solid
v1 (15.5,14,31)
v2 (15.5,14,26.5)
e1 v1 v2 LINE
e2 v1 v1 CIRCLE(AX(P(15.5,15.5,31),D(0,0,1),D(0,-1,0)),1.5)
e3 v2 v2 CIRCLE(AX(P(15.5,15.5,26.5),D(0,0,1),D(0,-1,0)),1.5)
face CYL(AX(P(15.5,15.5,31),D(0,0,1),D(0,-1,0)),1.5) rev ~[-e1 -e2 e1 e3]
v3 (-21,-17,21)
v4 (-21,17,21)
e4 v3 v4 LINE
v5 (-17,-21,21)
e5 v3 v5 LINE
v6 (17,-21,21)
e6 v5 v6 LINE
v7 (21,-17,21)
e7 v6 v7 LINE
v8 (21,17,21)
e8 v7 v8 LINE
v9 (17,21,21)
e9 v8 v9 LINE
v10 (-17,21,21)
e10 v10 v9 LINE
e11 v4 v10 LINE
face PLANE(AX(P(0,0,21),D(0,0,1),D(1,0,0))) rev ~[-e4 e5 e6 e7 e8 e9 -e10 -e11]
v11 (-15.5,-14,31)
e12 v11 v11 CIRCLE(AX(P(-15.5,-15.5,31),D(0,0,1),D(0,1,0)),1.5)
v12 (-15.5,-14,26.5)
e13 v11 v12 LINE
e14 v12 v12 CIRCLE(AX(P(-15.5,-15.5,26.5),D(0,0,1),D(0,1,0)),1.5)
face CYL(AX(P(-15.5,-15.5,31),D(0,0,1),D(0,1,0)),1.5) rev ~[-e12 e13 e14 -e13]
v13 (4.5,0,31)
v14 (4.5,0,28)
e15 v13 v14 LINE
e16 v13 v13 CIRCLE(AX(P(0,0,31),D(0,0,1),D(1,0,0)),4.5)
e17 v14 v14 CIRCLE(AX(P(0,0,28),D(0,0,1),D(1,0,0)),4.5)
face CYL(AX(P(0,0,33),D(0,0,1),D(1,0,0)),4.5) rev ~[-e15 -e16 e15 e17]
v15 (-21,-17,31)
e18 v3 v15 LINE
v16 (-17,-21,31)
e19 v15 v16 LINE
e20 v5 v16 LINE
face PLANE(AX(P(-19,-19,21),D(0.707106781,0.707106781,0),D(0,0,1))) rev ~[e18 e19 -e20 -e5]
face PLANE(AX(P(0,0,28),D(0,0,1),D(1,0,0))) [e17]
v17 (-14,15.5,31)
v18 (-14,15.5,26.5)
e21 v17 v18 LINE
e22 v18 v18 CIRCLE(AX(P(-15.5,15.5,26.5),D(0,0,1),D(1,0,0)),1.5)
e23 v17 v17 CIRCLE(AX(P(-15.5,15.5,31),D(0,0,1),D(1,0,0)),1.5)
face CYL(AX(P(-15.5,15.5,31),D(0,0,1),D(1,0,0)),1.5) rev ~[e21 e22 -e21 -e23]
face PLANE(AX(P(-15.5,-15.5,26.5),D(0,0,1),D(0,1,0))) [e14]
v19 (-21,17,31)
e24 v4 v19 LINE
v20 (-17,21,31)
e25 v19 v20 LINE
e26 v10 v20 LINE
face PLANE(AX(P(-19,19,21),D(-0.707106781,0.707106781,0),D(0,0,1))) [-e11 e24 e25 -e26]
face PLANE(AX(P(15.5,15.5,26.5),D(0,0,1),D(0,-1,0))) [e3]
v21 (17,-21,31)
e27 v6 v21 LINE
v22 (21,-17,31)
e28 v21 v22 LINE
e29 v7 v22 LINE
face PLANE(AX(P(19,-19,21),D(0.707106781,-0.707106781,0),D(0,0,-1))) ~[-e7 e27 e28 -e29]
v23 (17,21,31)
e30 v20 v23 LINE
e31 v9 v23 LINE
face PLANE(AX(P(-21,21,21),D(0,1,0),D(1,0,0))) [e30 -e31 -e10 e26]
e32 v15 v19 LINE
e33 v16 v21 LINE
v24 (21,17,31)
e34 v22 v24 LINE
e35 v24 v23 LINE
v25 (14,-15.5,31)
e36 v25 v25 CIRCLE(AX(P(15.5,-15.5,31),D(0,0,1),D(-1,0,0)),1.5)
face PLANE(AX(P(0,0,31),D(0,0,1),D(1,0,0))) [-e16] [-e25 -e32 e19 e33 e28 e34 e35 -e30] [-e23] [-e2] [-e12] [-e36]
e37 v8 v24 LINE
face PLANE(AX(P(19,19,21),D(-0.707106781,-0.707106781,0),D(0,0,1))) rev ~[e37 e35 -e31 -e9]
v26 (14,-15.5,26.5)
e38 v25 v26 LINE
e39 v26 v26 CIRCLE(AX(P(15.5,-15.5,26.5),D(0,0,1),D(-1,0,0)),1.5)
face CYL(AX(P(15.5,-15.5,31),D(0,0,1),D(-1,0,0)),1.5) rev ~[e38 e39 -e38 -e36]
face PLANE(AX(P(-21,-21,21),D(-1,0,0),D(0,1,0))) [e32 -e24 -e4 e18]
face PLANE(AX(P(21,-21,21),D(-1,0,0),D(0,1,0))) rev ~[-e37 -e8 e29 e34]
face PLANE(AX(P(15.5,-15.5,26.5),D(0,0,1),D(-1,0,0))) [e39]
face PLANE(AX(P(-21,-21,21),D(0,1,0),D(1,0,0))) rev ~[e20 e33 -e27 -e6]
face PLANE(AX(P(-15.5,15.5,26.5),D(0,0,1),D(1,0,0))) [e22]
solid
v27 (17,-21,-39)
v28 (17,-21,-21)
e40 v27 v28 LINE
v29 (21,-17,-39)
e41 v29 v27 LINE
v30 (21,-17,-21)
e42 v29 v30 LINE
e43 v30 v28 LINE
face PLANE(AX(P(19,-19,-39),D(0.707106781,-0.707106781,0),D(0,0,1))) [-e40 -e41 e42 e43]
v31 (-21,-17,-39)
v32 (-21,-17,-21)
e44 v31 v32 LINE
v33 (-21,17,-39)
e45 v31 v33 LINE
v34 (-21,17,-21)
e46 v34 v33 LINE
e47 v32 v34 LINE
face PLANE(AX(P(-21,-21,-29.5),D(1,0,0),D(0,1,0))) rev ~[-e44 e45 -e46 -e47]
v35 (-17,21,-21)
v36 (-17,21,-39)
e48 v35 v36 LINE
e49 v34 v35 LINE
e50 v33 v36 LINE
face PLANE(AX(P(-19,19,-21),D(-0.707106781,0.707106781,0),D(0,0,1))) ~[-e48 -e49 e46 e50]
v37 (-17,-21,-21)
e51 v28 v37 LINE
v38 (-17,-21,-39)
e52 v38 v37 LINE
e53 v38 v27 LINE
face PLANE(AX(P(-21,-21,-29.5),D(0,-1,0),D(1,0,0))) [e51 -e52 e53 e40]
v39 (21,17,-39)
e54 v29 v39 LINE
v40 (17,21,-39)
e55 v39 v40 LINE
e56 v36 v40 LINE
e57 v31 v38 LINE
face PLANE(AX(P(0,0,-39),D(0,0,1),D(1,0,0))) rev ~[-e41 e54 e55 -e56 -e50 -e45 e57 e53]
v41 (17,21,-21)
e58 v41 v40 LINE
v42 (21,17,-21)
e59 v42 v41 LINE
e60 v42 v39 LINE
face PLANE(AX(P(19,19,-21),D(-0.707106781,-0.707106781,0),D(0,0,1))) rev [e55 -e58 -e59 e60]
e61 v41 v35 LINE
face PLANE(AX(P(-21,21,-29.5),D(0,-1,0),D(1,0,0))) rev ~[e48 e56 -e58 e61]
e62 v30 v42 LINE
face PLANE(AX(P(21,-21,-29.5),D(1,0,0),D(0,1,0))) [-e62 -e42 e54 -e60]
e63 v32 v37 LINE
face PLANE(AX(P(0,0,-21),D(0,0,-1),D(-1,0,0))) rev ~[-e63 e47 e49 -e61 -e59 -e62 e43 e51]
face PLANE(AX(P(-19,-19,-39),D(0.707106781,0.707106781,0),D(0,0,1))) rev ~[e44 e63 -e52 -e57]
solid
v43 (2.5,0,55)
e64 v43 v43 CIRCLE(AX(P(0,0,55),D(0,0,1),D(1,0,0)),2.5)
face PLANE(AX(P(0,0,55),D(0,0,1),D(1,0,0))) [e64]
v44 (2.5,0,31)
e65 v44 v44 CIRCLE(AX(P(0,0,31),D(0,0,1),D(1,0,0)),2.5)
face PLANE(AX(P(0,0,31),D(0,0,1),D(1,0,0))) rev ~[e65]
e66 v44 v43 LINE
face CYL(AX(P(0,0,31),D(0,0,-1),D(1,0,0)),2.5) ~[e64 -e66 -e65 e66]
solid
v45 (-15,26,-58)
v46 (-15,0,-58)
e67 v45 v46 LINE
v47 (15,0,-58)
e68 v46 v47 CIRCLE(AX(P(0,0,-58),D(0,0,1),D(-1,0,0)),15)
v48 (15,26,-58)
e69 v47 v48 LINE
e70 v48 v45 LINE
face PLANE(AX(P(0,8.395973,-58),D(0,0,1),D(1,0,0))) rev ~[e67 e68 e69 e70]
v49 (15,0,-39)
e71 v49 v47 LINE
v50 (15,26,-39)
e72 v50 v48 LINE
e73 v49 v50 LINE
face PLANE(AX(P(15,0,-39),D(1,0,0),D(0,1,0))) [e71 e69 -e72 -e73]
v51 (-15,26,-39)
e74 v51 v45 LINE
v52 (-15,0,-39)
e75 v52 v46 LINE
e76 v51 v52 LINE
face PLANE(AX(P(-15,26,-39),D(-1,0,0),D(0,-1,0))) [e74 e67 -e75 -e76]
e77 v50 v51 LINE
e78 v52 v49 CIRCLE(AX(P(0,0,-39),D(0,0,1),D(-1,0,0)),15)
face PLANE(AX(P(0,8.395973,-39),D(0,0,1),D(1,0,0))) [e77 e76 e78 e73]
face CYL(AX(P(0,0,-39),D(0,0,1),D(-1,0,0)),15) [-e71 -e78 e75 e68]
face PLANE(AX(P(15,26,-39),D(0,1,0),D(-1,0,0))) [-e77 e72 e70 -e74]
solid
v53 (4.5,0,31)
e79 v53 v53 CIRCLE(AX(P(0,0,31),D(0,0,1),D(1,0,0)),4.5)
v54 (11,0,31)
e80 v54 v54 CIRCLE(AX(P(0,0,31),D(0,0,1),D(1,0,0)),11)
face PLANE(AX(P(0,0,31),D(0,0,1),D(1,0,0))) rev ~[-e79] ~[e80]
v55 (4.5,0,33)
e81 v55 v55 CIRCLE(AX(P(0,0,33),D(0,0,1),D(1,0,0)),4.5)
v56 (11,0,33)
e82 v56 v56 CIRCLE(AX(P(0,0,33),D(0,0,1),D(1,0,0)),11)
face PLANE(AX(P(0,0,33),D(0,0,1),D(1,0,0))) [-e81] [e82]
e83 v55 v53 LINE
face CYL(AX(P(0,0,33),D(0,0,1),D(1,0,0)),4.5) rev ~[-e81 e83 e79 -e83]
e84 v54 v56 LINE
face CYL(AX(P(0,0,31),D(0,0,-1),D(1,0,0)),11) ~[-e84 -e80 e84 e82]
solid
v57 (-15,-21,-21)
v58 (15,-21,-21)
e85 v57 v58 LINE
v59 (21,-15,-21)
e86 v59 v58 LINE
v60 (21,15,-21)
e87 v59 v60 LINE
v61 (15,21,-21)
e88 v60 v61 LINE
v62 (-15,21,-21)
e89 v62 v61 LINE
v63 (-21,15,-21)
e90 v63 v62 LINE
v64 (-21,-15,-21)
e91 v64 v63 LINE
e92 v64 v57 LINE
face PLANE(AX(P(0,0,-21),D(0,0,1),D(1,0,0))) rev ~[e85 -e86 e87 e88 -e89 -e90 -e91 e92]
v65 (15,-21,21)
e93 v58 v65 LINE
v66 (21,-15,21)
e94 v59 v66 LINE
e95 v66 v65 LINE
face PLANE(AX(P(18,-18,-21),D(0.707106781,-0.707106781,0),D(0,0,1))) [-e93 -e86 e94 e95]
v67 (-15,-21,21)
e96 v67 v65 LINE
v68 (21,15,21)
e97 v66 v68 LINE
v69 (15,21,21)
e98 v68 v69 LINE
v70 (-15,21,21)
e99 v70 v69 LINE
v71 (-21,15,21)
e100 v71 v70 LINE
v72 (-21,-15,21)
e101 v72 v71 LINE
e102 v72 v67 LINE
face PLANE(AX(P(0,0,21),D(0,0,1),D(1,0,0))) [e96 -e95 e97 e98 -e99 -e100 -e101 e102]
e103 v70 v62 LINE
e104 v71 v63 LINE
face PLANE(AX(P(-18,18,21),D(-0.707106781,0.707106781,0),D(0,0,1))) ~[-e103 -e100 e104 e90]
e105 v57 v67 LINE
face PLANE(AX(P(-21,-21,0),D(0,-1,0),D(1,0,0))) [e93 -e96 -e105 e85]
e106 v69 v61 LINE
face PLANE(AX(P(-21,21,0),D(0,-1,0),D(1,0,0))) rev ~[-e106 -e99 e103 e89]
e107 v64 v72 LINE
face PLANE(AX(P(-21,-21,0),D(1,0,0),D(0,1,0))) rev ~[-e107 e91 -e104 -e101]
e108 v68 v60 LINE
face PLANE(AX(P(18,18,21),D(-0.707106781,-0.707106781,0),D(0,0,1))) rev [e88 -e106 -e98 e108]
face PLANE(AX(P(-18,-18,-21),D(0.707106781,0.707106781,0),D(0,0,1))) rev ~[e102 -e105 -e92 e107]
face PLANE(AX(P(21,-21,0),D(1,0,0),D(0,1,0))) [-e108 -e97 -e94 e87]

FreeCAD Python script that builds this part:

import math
import FreeCAD as App
import Part
import Sketcher


def edges_at(feature, points):
    """Names of the edges that pass closest to the given points."""
    edges = feature.Shape.Edges
    near = lambda p: min(range(len(edges)), key=lambda i: edges[i].distToShape(Part.Vertex(*p))[0])
    return sorted({f"Edge{near(p) + 1}" for p in points})

doc = App.newDocument("Part")
body = doc.addObject("PartDesign::Body", "Body")

# Sketch on XY plane
sketch1 = body.newObject("Sketcher::SketchObject", "Sketch")
sketch1.AttachmentSupport = (doc.getObject("XY_Plane"), [""])
sketch1.MapMode = "FlatFace"
sketch1.addGeometry([
    Part.LineSegment(App.Vector(-21, 21, 0), App.Vector(-21, -21, 0)),
    Part.LineSegment(App.Vector(-21, -21, 0), App.Vector(21, -21, 0)),
    Part.LineSegment(App.Vector(21, -21, 0), App.Vector(21, 21, 0)),
    Part.LineSegment(App.Vector(21, 21, 0), App.Vector(-21, 21, 0)),
], False)
sketch1.addConstraint([
    Sketcher.Constraint("Coincident", 0, 2, 1, 1),
    Sketcher.Constraint("Coincident", 1, 2, 2, 1),
    Sketcher.Constraint("Coincident", 2, 2, 3, 1),
    Sketcher.Constraint("Coincident", 3, 2, 0, 1),
    Sketcher.Constraint("Vertical", 0),
    Sketcher.Constraint("Horizontal", 1),
    Sketcher.Constraint("Vertical", 2),
    Sketcher.Constraint("Horizontal", 3),
    Sketcher.Constraint("Symmetric", 0, 2, 2, 2, -1, 1),
    Sketcher.Constraint("Equal", 3, 0),
    Sketcher.Constraint("DistanceX", 1, 1, 1, 2, 42.0),
])
pad1 = body.newObject("PartDesign::Pad", "Pad")
pad1.Profile = sketch1
pad1.Length = 42
pad1.Midplane = True
doc.recompute()

chamfer = body.newObject("PartDesign::Chamfer", "Chamfer")
chamfer.Base = (pad1, edges_at(pad1, [
    (21, -21, 0),
    (-21, -21, 0),
    (-21, 21, 0),
    (21, 21, 0),
]))
chamfer.Size = 6
body2 = doc.addObject("PartDesign::Body", "Body001")

# Sketch on XY plane
sketch2 = body2.newObject("Sketcher::SketchObject", "Sketch001")
sketch2.AttachmentSupport = (doc.getObject("XY_Plane001"), [""])
sketch2.MapMode = "FlatFace"
sketch2.AttachmentOffset = App.Placement(App.Vector(0, 0, 21), App.Rotation())
sketch2.addGeometry([
    Part.LineSegment(App.Vector(-21, 21, 0), App.Vector(-21, -21, 0)),
    Part.LineSegment(App.Vector(-21, -21, 0), App.Vector(21, -21, 0)),
    Part.LineSegment(App.Vector(21, -21, 0), App.Vector(21, 21, 0)),
    Part.LineSegment(App.Vector(21, 21, 0), App.Vector(-21, 21, 0)),
], False)
sketch2.addConstraint([
    Sketcher.Constraint("Coincident", 0, 2, 1, 1),
    Sketcher.Constraint("Coincident", 1, 2, 2, 1),
    Sketcher.Constraint("Coincident", 2, 2, 3, 1),
    Sketcher.Constraint("Coincident", 3, 2, 0, 1),
    Sketcher.Constraint("Vertical", 0),
    Sketcher.Constraint("Horizontal", 1),
    Sketcher.Constraint("Vertical", 2),
    Sketcher.Constraint("Horizontal", 3),
    Sketcher.Constraint("Symmetric", 0, 2, 2, 2, -1, 1),
    Sketcher.Constraint("Equal", 3, 0),
    Sketcher.Constraint("DistanceX", 1, 1, 1, 2, 42.0),
])
pad2 = body2.newObject("PartDesign::Pad", "Pad001")
pad2.Profile = sketch2
pad2.Length = 10
doc.recompute()

chamfer2 = body2.newObject("PartDesign::Chamfer", "Chamfer001")
chamfer2.Base = (pad2, edges_at(pad2, [
    (21, -21, 26),
    (-21, -21, 26),
    (-21, 21, 26),
    (21, 21, 26),
]))
chamfer2.Size = 4
body3 = doc.addObject("PartDesign::Body", "Body002")

# Sketch on XY plane
sketch3 = body3.newObject("Sketcher::SketchObject", "Sketch002")
sketch3.AttachmentSupport = (doc.getObject("XY_Plane002"), [""])
sketch3.MapMode = "FlatFace"
sketch3.AttachmentOffset = App.Placement(App.Vector(0, 0, -21), App.Rotation())
sketch3.addGeometry([
    Part.LineSegment(App.Vector(21, 21, 0), App.Vector(21, -21, 0)),
    Part.LineSegment(App.Vector(21, -21, 0), App.Vector(-21, -21, 0)),
    Part.LineSegment(App.Vector(-21, -21, 0), App.Vector(-21, 21, 0)),
    Part.LineSegment(App.Vector(-21, 21, 0), App.Vector(21, 21, 0)),
], False)
sketch3.addConstraint([
    Sketcher.Constraint("Coincident", 0, 2, 1, 1),
    Sketcher.Constraint("Coincident", 1, 2, 2, 1),
    Sketcher.Constraint("Coincident", 2, 2, 3, 1),
    Sketcher.Constraint("Coincident", 3, 2, 0, 1),
    Sketcher.Constraint("Vertical", 0),
    Sketcher.Constraint("Horizontal", 1),
    Sketcher.Constraint("Vertical", 2),
    Sketcher.Constraint("Horizontal", 3),
    Sketcher.Constraint("Symmetric", 0, 2, 2, 2, -1, 1),
    Sketcher.Constraint("Equal", 3, 0),
    Sketcher.Constraint("DistanceX", 1, 2, 1, 1, 42.0),
])
pad3 = body3.newObject("PartDesign::Pad", "Pad002")
pad3.Profile = sketch3
pad3.Length = 8.5
pad3.Reversed = True

# Sketch on XY plane
sketch4 = body3.newObject("Sketcher::SketchObject", "Sketch003")
sketch4.AttachmentSupport = (doc.getObject("XY_Plane002"), [""])
sketch4.MapMode = "FlatFace"
sketch4.AttachmentOffset = App.Placement(App.Vector(0, 0, -29.5), App.Rotation())
sketch4.addGeometry([
    Part.LineSegment(App.Vector(-21, 21, 0), App.Vector(-21, -21, 0)),
    Part.LineSegment(App.Vector(-21, -21, 0), App.Vector(21, -21, 0)),
    Part.LineSegment(App.Vector(21, -21, 0), App.Vector(21, 21, 0)),
    Part.LineSegment(App.Vector(21, 21, 0), App.Vector(-21, 21, 0)),
], False)
sketch4.addConstraint([
    Sketcher.Constraint("Coincident", 0, 2, 1, 1),
    Sketcher.Constraint("Coincident", 1, 2, 2, 1),
    Sketcher.Constraint("Coincident", 2, 2, 3, 1),
    Sketcher.Constraint("Coincident", 3, 2, 0, 1),
    Sketcher.Constraint("Vertical", 0),
    Sketcher.Constraint("Horizontal", 1),
    Sketcher.Constraint("Vertical", 2),
    Sketcher.Constraint("Horizontal", 3),
    Sketcher.Constraint("Symmetric", 0, 2, 2, 2, -1, 1),
    Sketcher.Constraint("Equal", 3, 0),
    Sketcher.Constraint("DistanceX", 1, 1, 1, 2, 42.0),
])
pad4 = body3.newObject("PartDesign::Pad", "Pad003")
pad4.Profile = sketch4
pad4.Length = 9.5
pad4.Reversed = True
doc.recompute()

chamfer3 = body3.newObject("PartDesign::Chamfer", "Chamfer002")
chamfer3.Base = (pad4, edges_at(pad4, [
    (-21, -21, -30),
    (21, -21, -30),
    (21, 21, -30),
    (-21, 21, -30),
]))
chamfer3.Size = 4
body4 = doc.addObject("PartDesign::Body", "Body003")

# Sketch on XY plane
sketch5 = body4.newObject("Sketcher::SketchObject", "Sketch004")
sketch5.AttachmentSupport = (doc.getObject("XY_Plane003"), [""])
sketch5.MapMode = "FlatFace"
sketch5.AttachmentOffset = App.Placement(App.Vector(0, 0, 31), App.Rotation())
sketch5.addGeometry(Part.Circle(App.Vector(0, 0, 0), App.Vector(0, 0, 1), 11), False)
sketch5.addConstraint([
    Sketcher.Constraint("Coincident", 0, 3, -1, 1),
    Sketcher.Constraint("Diameter", 0, 22.0),
])
pad5 = body4.newObject("PartDesign::Pad", "Pad004")
pad5.Profile = sketch5
pad5.Length = 2
body5 = doc.addObject("PartDesign::Body", "Body004")

# Sketch on XY plane
sketch6 = body5.newObject("Sketcher::SketchObject", "Sketch005")
sketch6.AttachmentSupport = (doc.getObject("XY_Plane004"), [""])
sketch6.MapMode = "FlatFace"
sketch6.AttachmentOffset = App.Placement(App.Vector(0, 0, 33), App.Rotation())
sketch6.addGeometry(Part.Circle(App.Vector(0, 0, 0), App.Vector(0, 0, 1), 4.5), False)
sketch6.addConstraint([
    Sketcher.Constraint("Coincident", 0, 3, -1, 1),
    Sketcher.Constraint("Diameter", 0, 9.0),
])
pad6 = body5.newObject("PartDesign::Pad", "Pad005")
pad6.Profile = sketch6
pad6.Length = 5
pad6.Reversed = True
doc.recompute()

body6 = doc.addObject("PartDesign::Body", "Body005")
body6.BaseFeature = body5
boolean = body2.newObject("PartDesign::Boolean", "Boolean")
boolean.Type = "Cut"
boolean.addObjects([body6])
doc.recompute()

# Sketch on XY plane
sketch7 = body2.newObject("Sketcher::SketchObject", "Sketch006")
sketch7.AttachmentSupport = (doc.getObject("XY_Plane001"), [""])
sketch7.MapMode = "FlatFace"
sketch7.AttachmentOffset = App.Placement(App.Vector(0, 0, 31), App.Rotation())
sketch7.addGeometry(Part.Circle(App.Vector(-15.5, 15.5, 0), App.Vector(0, 0, 1), 1.5), False)
sketch7.addConstraint([
    Sketcher.Constraint("Diameter", 0, 3.0),
    Sketcher.Constraint("DistanceX", 0, 3, -1, 1, 15.5),
    Sketcher.Constraint("DistanceY", -1, 1, 0, 3, 15.5),
])
pocket1 = body2.newObject("PartDesign::Pocket", "Pocket")
pocket1.Profile = sketch7
pocket1.Length = 4.5
doc.recompute()

polarpattern = body2.newObject("PartDesign::PolarPattern", "PolarPattern")
polarpattern.Originals = [pocket1]
polarpattern.Axis = (doc.getObject("Z_Axis001"), [""])
polarpattern.Angle = 360
polarpattern.Occurrences = 4
body2.Tip = polarpattern
doc.recompute()

boolean2 = body4.newObject("PartDesign::Boolean", "Boolean001")
boolean2.Type = "Cut"
boolean2.addObjects([body5])
body7 = doc.addObject("PartDesign::Body", "Body006")

# Sketch on XY plane
sketch8 = body7.newObject("Sketcher::SketchObject", "Sketch007")
sketch8.AttachmentSupport = (doc.getObject("XY_Plane006"), [""])
sketch8.MapMode = "FlatFace"
sketch8.AttachmentOffset = App.Placement(App.Vector(0, 0, 31), App.Rotation())
sketch8.addGeometry(Part.Circle(App.Vector(0, 0, 0), App.Vector(0, 0, 1), 2.5), False)
sketch8.addConstraint([
    Sketcher.Constraint("Coincident", 0, 3, -1, 1),
    Sketcher.Constraint("Diameter", 0, 5.0),
])
pad7 = body7.newObject("PartDesign::Pad", "Pad006")
pad7.Profile = sketch8
pad7.Length = 24
body8 = doc.addObject("PartDesign::Body", "Body007")

# Sketch on XY plane
sketch9 = body8.newObject("Sketcher::SketchObject", "Sketch008")
sketch9.AttachmentSupport = (doc.getObject("XY_Plane007"), [""])
sketch9.MapMode = "FlatFace"
sketch9.AttachmentOffset = App.Placement(App.Vector(0, 0, -39), App.Rotation())
sketch9.addGeometry([
    Part.LineSegment(App.Vector(15, 26, 0), App.Vector(15, 0, 0)),
    Part.ArcOfCircle(Part.Circle(App.Vector(0, 0, 0), App.Vector(0, 0, 1), 15), math.radians(180), math.radians(360)),
    Part.LineSegment(App.Vector(-15, 0, 0), App.Vector(-15, 26, 0)),
    Part.LineSegment(App.Vector(-15, 26, 0), App.Vector(15, 26, 0)),
], False)
sketch9.addConstraint([
    Sketcher.Constraint("Tangent", 0, 2, 1, 2),
    Sketcher.Constraint("Tangent", 1, 1, 2, 1),
    Sketcher.Constraint("Coincident", 2, 2, 3, 1),
    Sketcher.Constraint("Coincident", 3, 2, 0, 1),
    Sketcher.Constraint("Vertical", 0),
    Sketcher.Constraint("Vertical", 2),
    Sketcher.Constraint("Horizontal", 3),
    Sketcher.Constraint("Coincident", 1, 3, -1, 1),
    Sketcher.Constraint("Radius", 1, 15.0),
    Sketcher.Constraint("DistanceY", 0, 2, 0, 1, 26.0),
])
pad8 = body8.newObject("PartDesign::Pad", "Pad007")
pad8.Profile = sketch9
pad8.Length = 19
pad8.Reversed = True

doc.recompute()
